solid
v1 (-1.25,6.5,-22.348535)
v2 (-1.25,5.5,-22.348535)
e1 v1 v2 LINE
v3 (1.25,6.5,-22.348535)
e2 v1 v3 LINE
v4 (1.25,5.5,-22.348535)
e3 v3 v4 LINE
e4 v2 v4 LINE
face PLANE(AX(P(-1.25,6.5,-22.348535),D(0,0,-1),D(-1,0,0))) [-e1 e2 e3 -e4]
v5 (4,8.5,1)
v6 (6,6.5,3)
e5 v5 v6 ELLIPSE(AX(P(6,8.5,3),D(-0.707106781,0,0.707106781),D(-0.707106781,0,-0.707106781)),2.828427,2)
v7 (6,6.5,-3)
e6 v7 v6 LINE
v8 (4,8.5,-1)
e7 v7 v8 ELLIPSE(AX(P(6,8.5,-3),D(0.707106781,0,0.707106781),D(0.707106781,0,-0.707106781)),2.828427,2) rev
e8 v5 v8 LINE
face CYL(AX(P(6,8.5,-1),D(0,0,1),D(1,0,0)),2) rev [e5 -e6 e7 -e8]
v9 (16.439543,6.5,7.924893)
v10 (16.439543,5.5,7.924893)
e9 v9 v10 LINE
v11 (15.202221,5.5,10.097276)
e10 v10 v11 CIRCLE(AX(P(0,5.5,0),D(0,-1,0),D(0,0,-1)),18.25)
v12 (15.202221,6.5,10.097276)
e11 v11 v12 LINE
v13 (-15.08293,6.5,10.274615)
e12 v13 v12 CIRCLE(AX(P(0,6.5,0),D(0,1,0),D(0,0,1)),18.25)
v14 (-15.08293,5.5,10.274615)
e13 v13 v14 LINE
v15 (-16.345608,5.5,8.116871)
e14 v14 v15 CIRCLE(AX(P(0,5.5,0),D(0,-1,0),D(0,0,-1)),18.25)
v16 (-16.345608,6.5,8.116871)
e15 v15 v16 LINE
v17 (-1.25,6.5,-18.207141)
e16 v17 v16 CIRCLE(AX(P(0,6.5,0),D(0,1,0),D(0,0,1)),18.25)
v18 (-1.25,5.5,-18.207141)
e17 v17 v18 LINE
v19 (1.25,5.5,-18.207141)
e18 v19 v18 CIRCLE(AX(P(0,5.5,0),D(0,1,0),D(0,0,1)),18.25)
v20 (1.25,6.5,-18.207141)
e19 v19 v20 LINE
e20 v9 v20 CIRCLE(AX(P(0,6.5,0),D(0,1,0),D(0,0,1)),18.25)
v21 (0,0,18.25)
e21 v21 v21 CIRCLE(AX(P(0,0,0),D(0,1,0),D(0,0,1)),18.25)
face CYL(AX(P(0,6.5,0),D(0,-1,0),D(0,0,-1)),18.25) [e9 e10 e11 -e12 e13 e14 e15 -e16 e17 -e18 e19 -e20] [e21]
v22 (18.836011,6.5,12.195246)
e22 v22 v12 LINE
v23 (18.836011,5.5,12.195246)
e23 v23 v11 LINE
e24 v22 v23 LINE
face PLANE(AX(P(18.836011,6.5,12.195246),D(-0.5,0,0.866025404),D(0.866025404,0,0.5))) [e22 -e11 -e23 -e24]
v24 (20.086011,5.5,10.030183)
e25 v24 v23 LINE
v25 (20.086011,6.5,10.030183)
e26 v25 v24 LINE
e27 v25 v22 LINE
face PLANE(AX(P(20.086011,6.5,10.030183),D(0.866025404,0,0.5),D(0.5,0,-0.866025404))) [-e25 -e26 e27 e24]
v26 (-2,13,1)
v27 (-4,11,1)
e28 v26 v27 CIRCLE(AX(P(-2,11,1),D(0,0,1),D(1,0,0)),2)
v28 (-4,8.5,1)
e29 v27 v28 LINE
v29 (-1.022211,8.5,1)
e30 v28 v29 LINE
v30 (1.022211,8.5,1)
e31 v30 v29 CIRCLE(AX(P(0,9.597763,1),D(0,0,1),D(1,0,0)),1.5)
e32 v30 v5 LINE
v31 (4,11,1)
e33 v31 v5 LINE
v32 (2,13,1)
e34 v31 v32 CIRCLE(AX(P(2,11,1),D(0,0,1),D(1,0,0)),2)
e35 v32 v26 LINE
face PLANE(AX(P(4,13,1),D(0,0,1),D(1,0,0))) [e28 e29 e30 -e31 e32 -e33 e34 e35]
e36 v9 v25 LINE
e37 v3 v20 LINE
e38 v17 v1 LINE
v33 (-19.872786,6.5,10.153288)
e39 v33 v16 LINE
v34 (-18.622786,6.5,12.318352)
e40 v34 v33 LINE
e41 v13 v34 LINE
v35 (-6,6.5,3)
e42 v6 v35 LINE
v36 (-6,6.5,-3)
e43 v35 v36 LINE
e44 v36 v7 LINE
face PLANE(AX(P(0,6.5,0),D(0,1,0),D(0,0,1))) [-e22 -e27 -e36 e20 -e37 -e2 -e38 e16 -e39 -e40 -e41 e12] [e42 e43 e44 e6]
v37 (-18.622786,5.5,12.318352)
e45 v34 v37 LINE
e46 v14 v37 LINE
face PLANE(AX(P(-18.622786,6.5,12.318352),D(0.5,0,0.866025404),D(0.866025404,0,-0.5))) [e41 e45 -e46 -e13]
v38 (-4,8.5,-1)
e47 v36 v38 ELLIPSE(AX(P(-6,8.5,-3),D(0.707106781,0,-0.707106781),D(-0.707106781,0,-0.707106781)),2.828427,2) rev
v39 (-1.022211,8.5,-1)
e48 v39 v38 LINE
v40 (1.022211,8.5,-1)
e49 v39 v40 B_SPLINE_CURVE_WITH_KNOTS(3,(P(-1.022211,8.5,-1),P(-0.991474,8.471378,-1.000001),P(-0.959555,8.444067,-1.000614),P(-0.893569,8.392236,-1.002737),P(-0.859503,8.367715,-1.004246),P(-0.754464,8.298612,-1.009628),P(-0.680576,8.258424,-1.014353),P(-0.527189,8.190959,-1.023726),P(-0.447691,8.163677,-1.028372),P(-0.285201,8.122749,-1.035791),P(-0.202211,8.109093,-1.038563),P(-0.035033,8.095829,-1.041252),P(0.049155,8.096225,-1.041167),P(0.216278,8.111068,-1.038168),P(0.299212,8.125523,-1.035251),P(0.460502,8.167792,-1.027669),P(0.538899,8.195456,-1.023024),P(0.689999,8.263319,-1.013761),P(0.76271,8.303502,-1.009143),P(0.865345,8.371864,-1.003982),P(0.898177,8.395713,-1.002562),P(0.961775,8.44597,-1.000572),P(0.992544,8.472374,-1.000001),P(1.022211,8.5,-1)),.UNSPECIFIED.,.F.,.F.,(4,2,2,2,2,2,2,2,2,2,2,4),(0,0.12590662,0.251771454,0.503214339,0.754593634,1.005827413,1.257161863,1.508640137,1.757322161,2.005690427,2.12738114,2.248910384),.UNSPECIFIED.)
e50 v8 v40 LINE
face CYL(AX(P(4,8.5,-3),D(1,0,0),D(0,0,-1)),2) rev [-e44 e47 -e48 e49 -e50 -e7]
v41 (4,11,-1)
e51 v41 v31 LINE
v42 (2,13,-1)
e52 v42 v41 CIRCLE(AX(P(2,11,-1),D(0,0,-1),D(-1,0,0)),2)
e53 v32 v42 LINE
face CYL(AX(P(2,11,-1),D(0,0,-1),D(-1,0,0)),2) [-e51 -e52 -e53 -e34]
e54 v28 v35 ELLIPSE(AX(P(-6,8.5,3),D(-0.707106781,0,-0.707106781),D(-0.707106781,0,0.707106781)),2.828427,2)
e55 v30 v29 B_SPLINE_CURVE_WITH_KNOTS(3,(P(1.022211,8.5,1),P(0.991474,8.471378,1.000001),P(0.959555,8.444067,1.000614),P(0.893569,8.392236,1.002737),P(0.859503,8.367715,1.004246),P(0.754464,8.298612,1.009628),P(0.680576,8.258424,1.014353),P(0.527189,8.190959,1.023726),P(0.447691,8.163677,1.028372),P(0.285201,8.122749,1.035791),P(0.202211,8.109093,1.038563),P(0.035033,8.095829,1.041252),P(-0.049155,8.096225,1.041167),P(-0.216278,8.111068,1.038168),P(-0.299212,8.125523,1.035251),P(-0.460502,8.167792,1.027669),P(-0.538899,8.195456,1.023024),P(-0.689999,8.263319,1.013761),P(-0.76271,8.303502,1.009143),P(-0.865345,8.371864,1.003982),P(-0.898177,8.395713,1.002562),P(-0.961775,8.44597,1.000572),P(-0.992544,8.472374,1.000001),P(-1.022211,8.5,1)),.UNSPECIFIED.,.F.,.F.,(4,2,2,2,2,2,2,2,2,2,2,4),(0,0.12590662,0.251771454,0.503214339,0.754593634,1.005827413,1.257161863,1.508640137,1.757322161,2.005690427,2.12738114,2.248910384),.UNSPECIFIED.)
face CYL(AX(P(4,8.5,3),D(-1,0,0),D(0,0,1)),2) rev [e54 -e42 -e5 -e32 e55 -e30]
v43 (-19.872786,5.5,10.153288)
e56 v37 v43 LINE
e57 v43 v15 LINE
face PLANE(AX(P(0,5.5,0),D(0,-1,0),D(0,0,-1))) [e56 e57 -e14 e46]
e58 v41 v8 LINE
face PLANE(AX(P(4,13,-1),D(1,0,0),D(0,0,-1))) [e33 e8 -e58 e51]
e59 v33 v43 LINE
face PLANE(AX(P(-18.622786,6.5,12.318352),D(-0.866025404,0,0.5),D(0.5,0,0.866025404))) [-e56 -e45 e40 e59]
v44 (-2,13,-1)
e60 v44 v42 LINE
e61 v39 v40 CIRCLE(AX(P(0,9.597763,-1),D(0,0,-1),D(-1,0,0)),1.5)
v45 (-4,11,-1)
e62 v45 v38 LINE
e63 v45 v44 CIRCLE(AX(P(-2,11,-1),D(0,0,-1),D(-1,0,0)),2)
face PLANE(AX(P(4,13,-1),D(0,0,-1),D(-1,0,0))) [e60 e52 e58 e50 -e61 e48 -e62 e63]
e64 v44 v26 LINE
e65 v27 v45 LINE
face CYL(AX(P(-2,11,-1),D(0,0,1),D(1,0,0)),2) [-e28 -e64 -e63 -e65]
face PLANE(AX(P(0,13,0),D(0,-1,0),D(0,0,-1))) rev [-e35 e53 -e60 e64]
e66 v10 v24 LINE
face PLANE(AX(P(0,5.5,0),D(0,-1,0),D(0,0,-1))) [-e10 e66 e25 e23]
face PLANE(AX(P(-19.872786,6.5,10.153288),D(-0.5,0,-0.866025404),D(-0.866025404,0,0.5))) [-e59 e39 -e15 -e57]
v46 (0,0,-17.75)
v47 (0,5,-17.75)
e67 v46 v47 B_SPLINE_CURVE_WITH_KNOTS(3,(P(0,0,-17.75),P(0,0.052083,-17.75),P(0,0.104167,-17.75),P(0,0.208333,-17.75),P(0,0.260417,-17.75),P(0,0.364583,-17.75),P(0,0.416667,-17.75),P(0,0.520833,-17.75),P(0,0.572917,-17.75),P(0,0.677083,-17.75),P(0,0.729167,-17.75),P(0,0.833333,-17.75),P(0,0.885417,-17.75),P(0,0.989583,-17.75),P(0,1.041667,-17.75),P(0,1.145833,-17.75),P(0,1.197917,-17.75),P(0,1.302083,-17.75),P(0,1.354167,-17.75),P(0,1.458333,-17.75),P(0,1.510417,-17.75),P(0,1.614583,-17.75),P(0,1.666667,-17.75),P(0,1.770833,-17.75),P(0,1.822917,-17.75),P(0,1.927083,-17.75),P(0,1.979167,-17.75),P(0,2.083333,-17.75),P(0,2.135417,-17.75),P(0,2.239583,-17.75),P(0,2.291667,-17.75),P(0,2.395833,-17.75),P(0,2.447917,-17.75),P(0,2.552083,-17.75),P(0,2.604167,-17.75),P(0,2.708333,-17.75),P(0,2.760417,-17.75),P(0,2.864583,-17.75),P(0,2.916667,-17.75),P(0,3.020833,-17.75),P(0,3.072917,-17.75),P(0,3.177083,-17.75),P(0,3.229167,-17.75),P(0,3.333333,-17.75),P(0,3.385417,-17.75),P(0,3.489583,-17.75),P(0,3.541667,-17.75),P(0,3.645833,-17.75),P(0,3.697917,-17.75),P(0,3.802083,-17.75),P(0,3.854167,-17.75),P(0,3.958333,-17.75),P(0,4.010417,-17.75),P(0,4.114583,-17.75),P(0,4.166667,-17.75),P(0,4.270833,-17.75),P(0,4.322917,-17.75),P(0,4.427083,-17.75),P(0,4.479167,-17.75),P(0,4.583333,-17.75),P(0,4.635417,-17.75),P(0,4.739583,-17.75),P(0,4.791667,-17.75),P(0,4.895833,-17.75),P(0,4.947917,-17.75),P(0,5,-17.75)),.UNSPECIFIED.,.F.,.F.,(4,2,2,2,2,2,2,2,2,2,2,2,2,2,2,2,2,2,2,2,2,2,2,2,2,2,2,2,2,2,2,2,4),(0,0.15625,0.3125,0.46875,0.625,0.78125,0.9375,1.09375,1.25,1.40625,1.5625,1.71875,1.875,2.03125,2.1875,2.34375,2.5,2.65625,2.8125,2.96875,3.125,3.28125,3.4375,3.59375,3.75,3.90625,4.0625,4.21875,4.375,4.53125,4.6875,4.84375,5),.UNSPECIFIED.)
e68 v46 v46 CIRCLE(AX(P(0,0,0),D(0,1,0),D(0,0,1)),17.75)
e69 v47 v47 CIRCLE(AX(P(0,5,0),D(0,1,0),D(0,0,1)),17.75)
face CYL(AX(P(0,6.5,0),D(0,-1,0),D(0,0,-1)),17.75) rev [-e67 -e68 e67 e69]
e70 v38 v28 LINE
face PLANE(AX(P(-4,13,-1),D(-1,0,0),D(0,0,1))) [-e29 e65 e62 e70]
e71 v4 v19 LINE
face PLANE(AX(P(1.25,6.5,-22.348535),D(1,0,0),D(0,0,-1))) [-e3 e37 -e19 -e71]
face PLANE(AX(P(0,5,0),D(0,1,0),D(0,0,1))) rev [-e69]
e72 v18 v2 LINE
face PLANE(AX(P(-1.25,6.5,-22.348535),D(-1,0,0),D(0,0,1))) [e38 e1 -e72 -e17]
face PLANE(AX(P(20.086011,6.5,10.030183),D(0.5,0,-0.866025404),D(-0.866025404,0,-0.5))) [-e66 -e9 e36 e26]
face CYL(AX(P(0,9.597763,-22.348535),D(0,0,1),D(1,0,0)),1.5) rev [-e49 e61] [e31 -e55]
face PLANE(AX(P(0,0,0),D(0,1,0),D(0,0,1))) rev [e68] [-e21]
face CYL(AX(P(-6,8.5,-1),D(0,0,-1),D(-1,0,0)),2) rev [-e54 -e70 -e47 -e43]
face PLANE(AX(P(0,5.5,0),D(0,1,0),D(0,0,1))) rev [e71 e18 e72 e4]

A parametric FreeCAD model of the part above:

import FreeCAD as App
import Part
import Sketcher
from FreeCAD import Vector
Q = App.Units.Quantity


def edges_at(feature, points):
    """Names of the edges that pass closest to the given points."""
    edges = feature.Shape.Edges
    near = lambda p: min(range(len(edges)), key=lambda i: edges[i].distToShape(Part.Vertex(*p))[0])
    return sorted({f"Edge{near(p) + 1}" for p in points})

doc = App.newDocument("Part")
body = doc.addObject("PartDesign::Body", "Body")

# Sketch on XZ plane
sketch1 = doc.addObject("Sketcher::SketchObject", "Sketch")
body.addObject(sketch1)
sketch1.AttachmentSupport = (doc.XZ_Plane, [""])
sketch1.MapMode = "FlatFace"
sketch1.addGeometry([
    Part.Circle(Vector(0, 0, 0), Vector(0, 0, 1), 18),
    Part.Circle(Vector(0, 0, 0), Vector(0, 0, 1), 18),
], False)
sketch1.addConstraint([
    Sketcher.Constraint("Coincident", 0, 3, -1, 1),
    Sketcher.Constraint("Coincident", 1, 3, -1, 1),
    Sketcher.Constraint("Diameter", 0, Q("36.5 mm")),
    Sketcher.Constraint("Diameter", 1, Q("35.5 mm")),
])
pad1 = doc.addObject("PartDesign::Pad", "Pad")
body.addObject(pad1)
pad1.Profile = sketch1
pad1.Length = 6.5
pad1.Reversed = True

# Sketch on XZ plane
sketch2 = doc.addObject("Sketcher::SketchObject", "Sketch001")
body.addObject(sketch2)
sketch2.AttachmentSupport = (doc.XZ_Plane, [""])
sketch2.MapMode = "FlatFace"
sketch2.AttachmentOffset = App.Placement(Vector(0, 0, -5), App.Rotation())
sketch2.addGeometry(Part.Circle(Vector(0, 0, 0), Vector(0, 0, 1), 18), False)
sketch2.addConstraint([
    Sketcher.Constraint("Coincident", 0, 3, -1, 1),
    Sketcher.Constraint("Diameter", 0, Q("36.5 mm")),
])
pad2 = doc.addObject("PartDesign::Pad", "Pad001")
body.addObject(pad2)
pad2.Profile = sketch2
pad2.Length = 1.5
pad2.Reversed = True

# Sketch on XZ plane
sketch3 = doc.addObject("Sketcher::SketchObject", "Sketch002")
body.addObject(sketch3)
sketch3.AttachmentSupport = (doc.XZ_Plane, [""])
sketch3.MapMode = "FlatFace"
sketch3.AttachmentOffset = App.Placement(Vector(0, 0, -5.5), App.Rotation())
sketch3.addGeometry([
    Part.LineSegment(Vector(-12.8, 8.9, 0), Vector(-18.6, 12.3, 0)),  # 0
    Part.LineSegment(Vector(-18.6, 12.3, 0), Vector(-19.9, 10.2, 0)),  # 1
    Part.LineSegment(Vector(-19.9, 10.2, 0), Vector(-14, 6.8, 0)),  # 2
    Part.LineSegment(Vector(-14, 6.8, 0), Vector(-12.8, 8.9, 0)),  # 3
    Part.LineSegment(Vector(1.2, -22.3, 0), Vector(1.2, -15.6, 0)),  # 4
    Part.LineSegment(Vector(1.2, -15.6, 0), Vector(-1.2, -15.6, 0)),  # 5
    Part.LineSegment(Vector(-1.2, -15.6, 0), Vector(-1.2, -22.3, 0)),  # 6
    Part.LineSegment(Vector(-1.2, -22.3, 0), Vector(1.2, -22.3, 0)),  # 7
    Part.LineSegment(Vector(14.3, 6.7, 0), Vector(20.1, 10, 0)),  # 8
    Part.LineSegment(Vector(20.1, 10, 0), Vector(18.8, 12.2, 0)),  # 9
    Part.LineSegment(Vector(18.8, 12.2, 0), Vector(13, 8.8, 0)),  # 10
    Part.LineSegment(Vector(13, 8.8, 0), Vector(14.3, 6.7, 0)),  # 11
], False)
sketch3.addConstraint([
    Sketcher.Constraint("Coincident", 0, 2, 1, 1),
    Sketcher.Constraint("Coincident", 1, 2, 2, 1),
    Sketcher.Constraint("Coincident", 2, 2, 3, 1),
    Sketcher.Constraint("Coincident", 3, 2, 0, 1),
    Sketcher.Constraint("Coincident", 4, 2, 5, 1),
    Sketcher.Constraint("Coincident", 5, 2, 6, 1),
    Sketcher.Constraint("Coincident", 6, 2, 7, 1),
    Sketcher.Constraint("Coincident", 7, 2, 4, 1),
    Sketcher.Constraint("Coincident", 8, 2, 9, 1),
    Sketcher.Constraint("Coincident", 9, 2, 10, 1),
    Sketcher.Constraint("Coincident", 10, 2, 11, 1),
    Sketcher.Constraint("Coincident", 11, 2, 8, 1),
    Sketcher.Constraint("Vertical", 4),
    Sketcher.Constraint("Horizontal", 5),
    Sketcher.Constraint("Vertical", 6),
    Sketcher.Constraint("Horizontal", 7),
    Sketcher.Constraint("Perpendicular", 0, 1),
    Sketcher.Constraint("Perpendicular", 1, 2),
    Sketcher.Constraint("Perpendicular", 2, 3),
    Sketcher.Constraint("Perpendicular", 8, 9),
    Sketcher.Constraint("Perpendicular", 9, 10),
    Sketcher.Constraint("Perpendicular", 10, 11),
    Sketcher.Constraint("Equal", 2, 8),
    Sketcher.Constraint("Equal", 3, 9),
    Sketcher.Constraint("Angle", 0, Q("150 deg")),
    Sketcher.Constraint("Angle", 8, Q("30 deg")),
    Sketcher.Constraint("DistanceX", 5, 2, 5, 1, Q("2.5 mm")),
    Sketcher.Constraint("Distance", 1, Q("2.5 mm")),
    Sketcher.Constraint("DistanceX", -1, 1, 4, 2, Q("1.25 mm")),
    Sketcher.Constraint("DistanceY", 4, 1, 4, 2, Q("6.738144 mm")),
    Sketcher.Constraint("DistanceY", -1, 1, 0, 2, Q("12.318352 mm")),
    Sketcher.Constraint("DistanceY", -1, 1, 3, 2, Q("8.94928 mm")),
    Sketcher.Constraint("DistanceY", 4, 2, -1, 1, Q("15.610391 mm")),
    Sketcher.Constraint("DistanceX", -1, 1, 8, 2, Q("20.086011 mm")),
    Sketcher.Constraint("DistanceY", -1, 1, 11, 2, Q("6.661111 mm")),
    Sketcher.Constraint("DistanceX", 3, 2, 10, 2, Q("25.787991 mm")),
])
pad3 = doc.addObject("PartDesign::Pad", "Pad002")
body.addObject(pad3)
pad3.Profile = sketch3
pad3.Length = 1
pad3.Reversed = True

# Sketch on XZ plane
sketch4 = doc.addObject("Sketcher::SketchObject", "Sketch003")
body.addObject(sketch4)
sketch4.AttachmentSupport = (doc.XZ_Plane, [""])
sketch4.MapMode = "FlatFace"
sketch4.AttachmentOffset = App.Placement(Vector(0, 0, -5), App.Rotation())
sketch4.addGeometry([
    Part.LineSegment(Vector(4, -1, 0), Vector(4, 1, 0)),
    Part.LineSegment(Vector(4, 1, 0), Vector(-4, 1, 0)),
    Part.LineSegment(Vector(-4, 1, 0), Vector(-4, -1, 0)),
    Part.LineSegment(Vector(-4, -1, 0), Vector(4, -1, 0)),
], False)
sketch4.addConstraint([
    Sketcher.Constraint("Coincident", 0, 2, 1, 1),
    Sketcher.Constraint("Coincident", 1, 2, 2, 1),
    Sketcher.Constraint("Coincident", 2, 2, 3, 1),
    Sketcher.Constraint("Coincident", 3, 2, 0, 1),
    Sketcher.Constraint("Vertical", 0),
    Sketcher.Constraint("Horizontal", 1),
    Sketcher.Constraint("Vertical", 2),
    Sketcher.Constraint("Horizontal", 3),
    Sketcher.Constraint("Symmetric", 0, 2, 2, 2, -1, 1),
    Sketcher.Constraint("DistanceX", 1, 2, 1, 1, Q("8 mm")),
    Sketcher.Constraint("DistanceY", 0, 1, 0, 2, Q("2 mm")),
])
pad4 = doc.addObject("PartDesign::Pad", "Pad003")
body.addObject(pad4)
pad4.Profile = sketch4
pad4.Length = 8
pad4.Reversed = True
doc.recompute()

fillet = doc.addObject("PartDesign::Fillet", "Fillet")
body.addObject(fillet)
fillet.Base = (pad4, edges_at(pad4, [
    (-4, 6.5, 0),
    (0, 6.5, 1),
    (4, 6.5, 0),
    (0, 6.5, -1),
]))
fillet.Radius = 2

# Sketch on XY plane
sketch5 = doc.addObject("Sketcher::SketchObject", "Sketch004")
body.addObject(sketch5)
sketch5.AttachmentSupport = (doc.XY_Plane, [""])
sketch5.MapMode = "FlatFace"
sketch5.AttachmentOffset = App.Placement(Vector(0, 0, 1), App.Rotation())
sketch5.addGeometry(Part.Circle(Vector(0, 9.6, 0), Vector(0, 0, 1), 1.5), False)
sketch5.addConstraint([
    Sketcher.Constraint("PointOnObject", 0, 3, -2),
    Sketcher.Constraint("Diameter", 0, Q("3 mm")),
    Sketcher.Constraint("DistanceY", -1, 1, 0, 3, Q("9.597763 mm")),
])
pocket1 = doc.addObject("PartDesign::Pocket", "Pocket")
body.addObject(pocket1)
pocket1.Profile = sketch5
pocket1.Type = "ThroughAll"
pocket1.Midplane = True
doc.recompute()

fillet2 = doc.addObject("PartDesign::Fillet", "Fillet001")
body.addObject(fillet2)
fillet2.Base = (pocket1, edges_at(pocket1, [(-4, 13, 0), (4, 13, 0)]))
fillet2.Radius = 2

doc.recompute()
